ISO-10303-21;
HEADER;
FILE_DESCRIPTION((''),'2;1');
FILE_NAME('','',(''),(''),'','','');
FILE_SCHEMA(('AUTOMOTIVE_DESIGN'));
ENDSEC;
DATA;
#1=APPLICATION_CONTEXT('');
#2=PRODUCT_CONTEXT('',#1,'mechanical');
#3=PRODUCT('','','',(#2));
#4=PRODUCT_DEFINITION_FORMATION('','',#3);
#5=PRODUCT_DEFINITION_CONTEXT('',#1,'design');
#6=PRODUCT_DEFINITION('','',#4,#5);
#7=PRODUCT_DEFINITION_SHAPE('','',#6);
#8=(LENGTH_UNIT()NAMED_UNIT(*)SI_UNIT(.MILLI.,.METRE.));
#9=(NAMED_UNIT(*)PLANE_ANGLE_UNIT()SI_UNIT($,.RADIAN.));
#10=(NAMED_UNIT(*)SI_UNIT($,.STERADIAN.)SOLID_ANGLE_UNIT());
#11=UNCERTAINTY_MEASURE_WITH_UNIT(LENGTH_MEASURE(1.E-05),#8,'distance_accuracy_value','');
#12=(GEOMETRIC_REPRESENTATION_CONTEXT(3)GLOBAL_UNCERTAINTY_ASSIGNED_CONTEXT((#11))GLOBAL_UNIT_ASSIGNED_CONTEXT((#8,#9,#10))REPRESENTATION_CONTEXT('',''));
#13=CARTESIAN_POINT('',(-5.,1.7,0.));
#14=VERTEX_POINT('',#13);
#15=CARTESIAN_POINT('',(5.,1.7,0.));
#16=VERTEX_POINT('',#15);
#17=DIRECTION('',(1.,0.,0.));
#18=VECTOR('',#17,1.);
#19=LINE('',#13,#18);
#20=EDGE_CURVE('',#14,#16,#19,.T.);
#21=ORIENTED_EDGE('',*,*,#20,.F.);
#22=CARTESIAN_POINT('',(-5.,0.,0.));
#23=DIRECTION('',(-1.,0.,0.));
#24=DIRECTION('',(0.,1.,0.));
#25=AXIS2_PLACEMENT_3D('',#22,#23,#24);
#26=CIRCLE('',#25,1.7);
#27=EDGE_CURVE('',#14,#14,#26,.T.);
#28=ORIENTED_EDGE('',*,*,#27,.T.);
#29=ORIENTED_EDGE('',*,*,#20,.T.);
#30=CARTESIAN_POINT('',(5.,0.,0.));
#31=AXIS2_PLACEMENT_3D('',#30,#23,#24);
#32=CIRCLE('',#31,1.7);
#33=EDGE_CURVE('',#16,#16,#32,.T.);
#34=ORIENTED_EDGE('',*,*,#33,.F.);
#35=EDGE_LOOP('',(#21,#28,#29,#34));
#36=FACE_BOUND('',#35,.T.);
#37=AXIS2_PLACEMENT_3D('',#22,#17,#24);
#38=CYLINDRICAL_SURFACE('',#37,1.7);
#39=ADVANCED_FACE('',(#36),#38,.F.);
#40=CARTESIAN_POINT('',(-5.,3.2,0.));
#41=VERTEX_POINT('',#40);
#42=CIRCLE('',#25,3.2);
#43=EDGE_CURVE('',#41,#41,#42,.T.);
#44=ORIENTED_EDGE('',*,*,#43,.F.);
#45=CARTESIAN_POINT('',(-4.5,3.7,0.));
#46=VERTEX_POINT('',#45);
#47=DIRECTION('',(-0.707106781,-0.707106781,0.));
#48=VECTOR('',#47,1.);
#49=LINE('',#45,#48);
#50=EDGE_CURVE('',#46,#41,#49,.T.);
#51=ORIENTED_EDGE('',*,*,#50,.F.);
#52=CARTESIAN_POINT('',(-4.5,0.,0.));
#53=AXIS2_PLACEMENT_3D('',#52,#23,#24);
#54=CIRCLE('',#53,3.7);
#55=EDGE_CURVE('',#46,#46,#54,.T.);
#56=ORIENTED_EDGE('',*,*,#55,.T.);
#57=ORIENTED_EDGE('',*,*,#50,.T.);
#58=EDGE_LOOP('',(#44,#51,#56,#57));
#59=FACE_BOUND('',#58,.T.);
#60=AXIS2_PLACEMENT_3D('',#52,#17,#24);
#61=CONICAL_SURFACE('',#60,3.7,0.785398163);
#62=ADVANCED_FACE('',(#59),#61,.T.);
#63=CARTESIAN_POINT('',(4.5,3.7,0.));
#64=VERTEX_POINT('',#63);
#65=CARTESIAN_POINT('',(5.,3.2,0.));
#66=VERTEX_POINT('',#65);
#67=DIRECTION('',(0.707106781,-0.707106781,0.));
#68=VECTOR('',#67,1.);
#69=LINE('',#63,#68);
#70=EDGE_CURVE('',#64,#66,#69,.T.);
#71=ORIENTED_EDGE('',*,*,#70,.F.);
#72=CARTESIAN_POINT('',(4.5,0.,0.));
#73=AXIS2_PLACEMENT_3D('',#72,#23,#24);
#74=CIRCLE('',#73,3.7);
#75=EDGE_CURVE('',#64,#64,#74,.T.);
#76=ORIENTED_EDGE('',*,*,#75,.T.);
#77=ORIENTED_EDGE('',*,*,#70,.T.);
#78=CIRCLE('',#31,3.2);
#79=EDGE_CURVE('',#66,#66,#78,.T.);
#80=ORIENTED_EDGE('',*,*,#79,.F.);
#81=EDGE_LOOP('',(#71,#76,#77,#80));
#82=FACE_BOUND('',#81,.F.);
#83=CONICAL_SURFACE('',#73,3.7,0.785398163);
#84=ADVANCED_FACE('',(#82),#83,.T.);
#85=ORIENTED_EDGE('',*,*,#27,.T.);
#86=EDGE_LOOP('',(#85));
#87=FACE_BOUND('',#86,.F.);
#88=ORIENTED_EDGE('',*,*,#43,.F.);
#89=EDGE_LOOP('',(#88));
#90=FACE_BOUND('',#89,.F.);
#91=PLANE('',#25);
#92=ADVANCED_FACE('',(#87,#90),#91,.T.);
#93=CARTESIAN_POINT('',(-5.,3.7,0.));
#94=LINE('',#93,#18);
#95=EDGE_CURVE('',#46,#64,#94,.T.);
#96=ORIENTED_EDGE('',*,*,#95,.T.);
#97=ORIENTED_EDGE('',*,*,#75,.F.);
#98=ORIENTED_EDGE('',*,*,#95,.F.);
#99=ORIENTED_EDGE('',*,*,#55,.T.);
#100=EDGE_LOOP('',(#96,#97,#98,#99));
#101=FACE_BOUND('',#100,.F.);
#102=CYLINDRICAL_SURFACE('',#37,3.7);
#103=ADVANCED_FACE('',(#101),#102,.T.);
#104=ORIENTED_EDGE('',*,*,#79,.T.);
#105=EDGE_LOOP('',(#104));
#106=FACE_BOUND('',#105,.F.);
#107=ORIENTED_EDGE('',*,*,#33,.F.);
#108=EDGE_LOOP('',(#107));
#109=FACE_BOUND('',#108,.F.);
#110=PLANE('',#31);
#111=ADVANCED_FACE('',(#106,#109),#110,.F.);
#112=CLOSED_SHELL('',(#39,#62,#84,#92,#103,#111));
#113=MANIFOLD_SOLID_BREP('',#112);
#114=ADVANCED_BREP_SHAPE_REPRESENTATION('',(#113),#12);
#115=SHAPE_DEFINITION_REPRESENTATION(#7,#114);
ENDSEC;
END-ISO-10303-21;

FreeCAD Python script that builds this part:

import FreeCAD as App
import Part
import Sketcher

V = App.Vector


def edges_at(feature, points):
    """Names of the edges that pass closest to the given points."""
    edges = feature.Shape.Edges
    near = lambda p: min(range(len(edges)), key=lambda i: edges[i].distToShape(Part.Vertex(*p))[0])
    return sorted({f"Edge{near(p) + 1}" for p in points})

doc = App.newDocument("Part")
body = doc.addObject("PartDesign::Body", "Body")

sketch1 = doc.addObject("Sketcher::SketchObject", "Sketch")
body.addObject(sketch1)
sketch1.AttachmentSupport = (doc.XY_Plane, [""])
sketch1.MapMode = "FlatFace"
sketch1.addGeometry(Part.LineSegment(V(5, 3.7, 0), V(-5, 3.7, 0)), False)
sketch1.addGeometry(Part.LineSegment(V(-5, 3.7, 0), V(-5, 1.7, 0)), False)
sketch1.addGeometry(Part.LineSegment(V(-5, 1.7, 0), V(5, 1.7, 0)), False)
sketch1.addGeometry(Part.LineSegment(V(5, 1.7, 0), V(5, 3.7, 0)), False)
sketch1.addConstraint(Sketcher.Constraint("Coincident", 0, 2, 1, 1))
sketch1.addConstraint(Sketcher.Constraint("Coincident", 1, 2, 2, 1))
sketch1.addConstraint(Sketcher.Constraint("Coincident", 2, 2, 3, 1))
sketch1.addConstraint(Sketcher.Constraint("Coincident", 3, 2, 0, 1))
sketch1.addConstraint(Sketcher.Constraint("Horizontal", 0))
sketch1.addConstraint(Sketcher.Constraint("Vertical", 1))
sketch1.addConstraint(Sketcher.Constraint("Horizontal", 2))
sketch1.addConstraint(Sketcher.Constraint("Vertical", 3))
sketch1.addConstraint(Sketcher.Constraint("DistanceX", 0, 2, 0, 1, 10.0))
sketch1.addConstraint(Sketcher.Constraint("DistanceY", 1, 2, 1, 1, 2.0))
sketch1.addConstraint(Sketcher.Constraint("DistanceX", 0, 2, -1, 1, 5.0))
sketch1.addConstraint(Sketcher.Constraint("DistanceY", -1, 1, 0, 2, 3.7))
revolution = doc.addObject("PartDesign::Revolution", "Revolution")
body.addObject(revolution)
revolution.Profile = sketch1
revolution.ReferenceAxis = (sketch1, ["H_Axis"])
revolution.Angle = 360
doc.recompute()

chamfer = doc.addObject("PartDesign::Chamfer", "Chamfer")
body.addObject(chamfer)
chamfer.Base = (revolution, edges_at(revolution, [(5, -3.7, 0), (-5, -3.7, 0)]))
chamfer.Size = 0.5

doc.recompute()
